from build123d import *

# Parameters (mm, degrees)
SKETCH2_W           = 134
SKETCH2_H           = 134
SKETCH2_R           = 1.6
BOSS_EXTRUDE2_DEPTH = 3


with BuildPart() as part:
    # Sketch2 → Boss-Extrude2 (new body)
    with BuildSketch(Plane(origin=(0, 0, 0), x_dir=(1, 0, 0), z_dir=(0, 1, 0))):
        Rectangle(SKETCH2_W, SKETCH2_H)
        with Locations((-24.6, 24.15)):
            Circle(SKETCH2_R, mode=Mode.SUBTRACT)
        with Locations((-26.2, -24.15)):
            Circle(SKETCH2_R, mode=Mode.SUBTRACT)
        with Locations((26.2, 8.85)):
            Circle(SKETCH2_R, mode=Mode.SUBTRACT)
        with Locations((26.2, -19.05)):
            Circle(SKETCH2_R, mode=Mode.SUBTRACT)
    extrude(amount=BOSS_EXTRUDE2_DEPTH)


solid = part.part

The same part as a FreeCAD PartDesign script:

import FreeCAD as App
import Part
import Sketcher
from FreeCAD import Vector
Q = App.Units.Quantity


def add_polygon(sketch, points):
    """Adds a closed chain of lines whose ends are joined by coincident constraints."""
    first, n = sketch.GeometryCount, len(points)
    for a, b in zip(points, points[1:] + points[:1]):
        sketch.addGeometry(Part.LineSegment(App.Vector(*a, 0), App.Vector(*b, 0)), False)
    for i in range(n):
        sketch.addConstraint(Sketcher.Constraint("Coincident", first + i, 2, first + (i + 1) % n, 1))

doc = App.newDocument("Part")
body = doc.addObject("PartDesign::Body", "Body")

# Sketch on XZ plane
sketch1 = body.newObject("Sketcher::SketchObject", "Sketch")
sketch1.AttachmentSupport = (doc.getObject("XZ_Plane"), [""])
sketch1.MapMode = "FlatFace"
add_polygon(sketch1, [(-67, -67), (-67, 67), (67, 67), (67, -67)])  # lines 0-3
sketch1.addGeometry(Part.Circle(Vector(-26.2, 24.1, 0), Vector(0, 0, 1), 1.6), False)  # 4
sketch1.addGeometry(Part.Circle(Vector(26.2, 19.1, 0), Vector(0, 0, 1), 1.6), False)  # 5
sketch1.addGeometry(Part.Circle(Vector(-24.6, -24.1, 0), Vector(0, 0, 1), 1.6), False)  # 6
sketch1.addGeometry(Part.Circle(Vector(26.2, -8.8, 0), Vector(0, 0, 1), 1.6), False)  # 7
sketch1.addConstraint([
    Sketcher.Constraint("Vertical", 0),
    Sketcher.Constraint("Horizontal", 1),
    Sketcher.Constraint("Vertical", 2),
    Sketcher.Constraint("Horizontal", 3),
    Sketcher.Constraint("Equal", 4, 5),
    Sketcher.Constraint("Equal", 5, 6),
    Sketcher.Constraint("Equal", 6, 7),
    Sketcher.Constraint("Symmetric", 0, 2, 2, 2, -1, 1),
    Sketcher.Constraint("Vertical", 5, 3, 7, 3),
    Sketcher.Constraint("Equal", 3, 0),
    Sketcher.Constraint("Diameter", 4, Q("3.2 mm")),
    Sketcher.Constraint("DistanceX", 1, 1, 1, 2, Q("134 mm")),
    Sketcher.Constraint("DistanceY", 7, 3, 4, 3, Q("33 mm")),
    Sketcher.Constraint("DistanceX", 4, 3, -1, 1, Q("26.2 mm")),
    Sketcher.Constraint("DistanceX", -1, 1, 5, 3, Q("26.2 mm")),
    Sketcher.Constraint("DistanceX", 6, 3, -1, 1, Q("24.6 mm")),
    Sketcher.Constraint("DistanceY", 5, 3, 4, 3, Q("5.1 mm")),
    Sketcher.Constraint("DistanceY", 6, 3, 4, 3, Q("48.3 mm")),
    Sketcher.Constraint("DistanceY", -1, 1, 4, 3, Q("24.15 mm")),
])
pad1 = body.newObject("PartDesign::Pad", "Pad")
pad1.Profile = sketch1
pad1.Length = 3
pad1.Reversed = True

doc.recompute()
